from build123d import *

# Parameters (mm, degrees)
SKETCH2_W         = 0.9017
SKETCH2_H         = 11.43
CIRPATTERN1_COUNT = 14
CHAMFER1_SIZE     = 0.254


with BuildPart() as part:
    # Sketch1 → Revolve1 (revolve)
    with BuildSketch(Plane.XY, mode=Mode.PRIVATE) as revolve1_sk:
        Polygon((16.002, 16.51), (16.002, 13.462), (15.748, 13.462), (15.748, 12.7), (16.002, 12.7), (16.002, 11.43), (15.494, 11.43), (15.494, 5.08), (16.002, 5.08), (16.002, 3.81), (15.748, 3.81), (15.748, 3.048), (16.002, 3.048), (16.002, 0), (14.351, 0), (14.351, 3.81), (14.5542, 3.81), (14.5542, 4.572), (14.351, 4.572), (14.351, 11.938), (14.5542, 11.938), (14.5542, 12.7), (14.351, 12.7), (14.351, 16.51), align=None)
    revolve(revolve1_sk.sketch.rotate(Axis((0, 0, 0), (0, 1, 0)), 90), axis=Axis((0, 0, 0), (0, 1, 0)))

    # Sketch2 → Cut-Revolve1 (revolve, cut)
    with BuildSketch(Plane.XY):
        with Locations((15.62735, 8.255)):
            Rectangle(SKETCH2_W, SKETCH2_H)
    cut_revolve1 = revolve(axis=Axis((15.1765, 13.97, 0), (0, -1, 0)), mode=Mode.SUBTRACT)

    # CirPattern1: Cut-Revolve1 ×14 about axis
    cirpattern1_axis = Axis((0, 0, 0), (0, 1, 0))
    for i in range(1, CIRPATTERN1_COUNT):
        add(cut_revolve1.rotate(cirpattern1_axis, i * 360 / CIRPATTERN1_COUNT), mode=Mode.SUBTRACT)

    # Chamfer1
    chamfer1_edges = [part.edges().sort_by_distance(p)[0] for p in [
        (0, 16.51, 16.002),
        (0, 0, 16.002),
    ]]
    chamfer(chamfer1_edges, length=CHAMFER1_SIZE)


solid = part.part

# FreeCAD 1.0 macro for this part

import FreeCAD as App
import Part
import Sketcher
from FreeCAD import Vector
Q = App.Units.Quantity


def edges_at(feature, points):
    """Names of the edges that pass closest to the given points."""
    edges = feature.Shape.Edges
    near = lambda p: min(range(len(edges)), key=lambda i: edges[i].distToShape(Part.Vertex(*p))[0])
    return sorted({f"Edge{near(p) + 1}" for p in points})

doc = App.newDocument("Part")
body = doc.addObject("PartDesign::Body", "Body")

sketch1 = doc.addObject("Sketcher::SketchObject", "Sketch")
body.addObject(sketch1)
sketch1.AttachmentSupport = (doc.XY_Plane, [""])
sketch1.MapMode = "FlatFace"
sketch1.addGeometry([
    Part.LineSegment(Vector(16, 13.46, 0), Vector(16, 16.51, 0)),
    Part.LineSegment(Vector(16, 16.51, 0), Vector(14.35, 16.51, 0)),
    Part.LineSegment(Vector(14.35, 16.51, 0), Vector(14.35, 12.7, 0)),
    Part.LineSegment(Vector(14.35, 12.7, 0), Vector(14.55, 12.7, 0)),
    Part.LineSegment(Vector(14.55, 12.7, 0), Vector(14.55, 11.94, 0)),
    Part.LineSegment(Vector(14.55, 11.94, 0), Vector(14.35, 11.94, 0)),
    Part.LineSegment(Vector(14.35, 11.94, 0), Vector(14.35, 4.57, 0)),
    Part.LineSegment(Vector(14.35, 4.57, 0), Vector(14.55, 4.57, 0)),
    Part.LineSegment(Vector(14.55, 4.57, 0), Vector(14.55, 3.81, 0)),
    Part.LineSegment(Vector(14.55, 3.81, 0), Vector(14.35, 3.81, 0)),
    Part.LineSegment(Vector(14.35, 3.81, 0), Vector(14.35, 0, 0)),
    Part.LineSegment(Vector(14.35, 0, 0), Vector(16, 0, 0)),
    Part.LineSegment(Vector(16, 0, 0), Vector(16, 3.05, 0)),
    Part.LineSegment(Vector(16, 3.05, 0), Vector(15.75, 3.05, 0)),
    Part.LineSegment(Vector(15.75, 3.05, 0), Vector(15.75, 3.81, 0)),
    Part.LineSegment(Vector(15.75, 3.81, 0), Vector(16, 3.81, 0)),
    Part.LineSegment(Vector(16, 3.81, 0), Vector(16, 5.08, 0)),
    Part.LineSegment(Vector(16, 5.08, 0), Vector(15.49, 5.08, 0)),
    Part.LineSegment(Vector(15.49, 5.08, 0), Vector(15.49, 11.43, 0)),
    Part.LineSegment(Vector(15.49, 11.43, 0), Vector(16, 11.43, 0)),
    Part.LineSegment(Vector(16, 11.43, 0), Vector(16, 12.7, 0)),
    Part.LineSegment(Vector(16, 12.7, 0), Vector(15.75, 12.7, 0)),
    Part.LineSegment(Vector(15.75, 12.7, 0), Vector(15.75, 13.46, 0)),
    Part.LineSegment(Vector(15.75, 13.46, 0), Vector(16, 13.46, 0)),
], False)
sketch1.addConstraint([
    Sketcher.Constraint("Coincident", 0, 2, 1, 1),
    Sketcher.Constraint("Coincident", 1, 2, 2, 1),
    Sketcher.Constraint("Coincident", 2, 2, 3, 1),
    Sketcher.Constraint("Coincident", 3, 2, 4, 1),
    Sketcher.Constraint("Coincident", 4, 2, 5, 1),
    Sketcher.Constraint("Coincident", 5, 2, 6, 1),
    Sketcher.Constraint("Coincident", 6, 2, 7, 1),
    Sketcher.Constraint("Coincident", 7, 2, 8, 1),
    Sketcher.Constraint("Coincident", 8, 2, 9, 1),
    Sketcher.Constraint("Coincident", 9, 2, 10, 1),
    Sketcher.Constraint("Coincident", 10, 2, 11, 1),
    Sketcher.Constraint("Coincident", 11, 2, 12, 1),
    Sketcher.Constraint("Coincident", 12, 2, 13, 1),
    Sketcher.Constraint("Coincident", 13, 2, 14, 1),
    Sketcher.Constraint("Coincident", 14, 2, 15, 1),
    Sketcher.Constraint("Coincident", 15, 2, 16, 1),
    Sketcher.Constraint("Coincident", 16, 2, 17, 1),
    Sketcher.Constraint("Coincident", 17, 2, 18, 1),
    Sketcher.Constraint("Coincident", 18, 2, 19, 1),
    Sketcher.Constraint("Coincident", 19, 2, 20, 1),
    Sketcher.Constraint("Coincident", 20, 2, 21, 1),
    Sketcher.Constraint("Coincident", 21, 2, 22, 1),
    Sketcher.Constraint("Coincident", 22, 2, 23, 1),
    Sketcher.Constraint("Coincident", 23, 2, 0, 1),
    Sketcher.Constraint("Vertical", 0),
    Sketcher.Constraint("Horizontal", 1),
    Sketcher.Constraint("Vertical", 2),
    Sketcher.Constraint("Horizontal", 3),
    Sketcher.Constraint("Vertical", 4),
    Sketcher.Constraint("Horizontal", 5),
    Sketcher.Constraint("Vertical", 6),
    Sketcher.Constraint("Horizontal", 7),
    Sketcher.Constraint("Vertical", 8),
    Sketcher.Constraint("Horizontal", 9),
    Sketcher.Constraint("Vertical", 10),
    Sketcher.Constraint("Horizontal", 11),
    Sketcher.Constraint("Vertical", 12),
    Sketcher.Constraint("Horizontal", 13),
    Sketcher.Constraint("Vertical", 14),
    Sketcher.Constraint("Horizontal", 15),
    Sketcher.Constraint("Vertical", 16),
    Sketcher.Constraint("Horizontal", 17),
    Sketcher.Constraint("Vertical", 18),
    Sketcher.Constraint("Horizontal", 19),
    Sketcher.Constraint("Vertical", 20),
    Sketcher.Constraint("Horizontal", 21),
    Sketcher.Constraint("Vertical", 22),
    Sketcher.Constraint("Horizontal", 23),
    Sketcher.Constraint("PointOnObject", 10, 2, -1),
    Sketcher.Constraint("Horizontal", 9, 2, 14, 2),
    Sketcher.Constraint("Horizontal", 3, 2, 20, 2),
    Sketcher.Constraint("Vertical", 2, 2, 5, 2),
    Sketcher.Constraint("Vertical", 4, 2, 7, 2),
    Sketcher.Constraint("Vertical", 6, 2, 9, 2),
    Sketcher.Constraint("Vertical", 0, 2, 11, 2),
    Sketcher.Constraint("Vertical", 12, 2, 15, 2),
    Sketcher.Constraint("Vertical", 16, 2, 19, 2),
    Sketcher.Constraint("Vertical", 14, 2, 21, 2),
    Sketcher.Constraint("Equal", 4, 8),
    Sketcher.Constraint("Equal", 2, 10),
    Sketcher.Constraint("Equal", 0, 12),
    Sketcher.Constraint("Equal", 8, 14),
    Sketcher.Constraint("Equal", 16, 20),
    Sketcher.Constraint("DistanceX", 13, 2, 13, 1, Q("0.01 in")),
    Sketcher.Constraint("DistanceX", 17, 2, 17, 1, Q("0.02 in")),
    Sketcher.Constraint("DistanceY", 0, 1, 0, 2, Q("0.12 in")),
    Sketcher.Constraint("DistanceY", 2, 2, 2, 1, Q("0.15 in")),
    Sketcher.Constraint("DistanceY", 6, 2, 6, 1, Q("0.29 in")),
    Sketcher.Constraint("DistanceY", 16, 1, 16, 2, Q("0.05 in")),
    Sketcher.Constraint("DistanceX", 1, 2, 1, 1, Q("0.065 in")),
    Sketcher.Constraint("DistanceX", 3, 1, 3, 2, Q("0.008 in")),
    Sketcher.Constraint("DistanceX", -1, 1, 0, 2, Q("0.63 in")),
])
revolution = doc.addObject("PartDesign::Revolution", "Revolution")
body.addObject(revolution)
revolution.Profile = sketch1
revolution.ReferenceAxis = (sketch1, ["V_Axis"])
revolution.Angle = 360

sketch2 = doc.addObject("Sketcher::SketchObject", "Sketch001")
body.addObject(sketch2)
sketch2.AttachmentSupport = (doc.XY_Plane, [""])
sketch2.MapMode = "FlatFace"
sketch2.addGeometry([
    Part.LineSegment(Vector(15.2, 14, 0), Vector(15.2, 2.5, 0)),
    Part.LineSegment(Vector(15.2, 2.5, 0), Vector(16.1, 2.5, 0)),
    Part.LineSegment(Vector(16.1, 2.5, 0), Vector(16.1, 14, 0)),
    Part.LineSegment(Vector(16.1, 14, 0), Vector(15.2, 14, 0)),
], False)
sketch2.addGeometry(Part.LineSegment(Vector(15.2, 14, 0), Vector(15.2, 2.5, 0)), True)
sketch2.addConstraint([
    Sketcher.Constraint("Coincident", 0, 2, 1, 1),
    Sketcher.Constraint("Coincident", 1, 2, 2, 1),
    Sketcher.Constraint("Coincident", 2, 2, 3, 1),
    Sketcher.Constraint("Coincident", 3, 2, 0, 1),
    Sketcher.Constraint("Vertical", 0),
    Sketcher.Constraint("Horizontal", 1),
    Sketcher.Constraint("Vertical", 2),
    Sketcher.Constraint("Horizontal", 3),
    Sketcher.Constraint("Vertical", 4),
    Sketcher.Constraint("Coincident", 4, 1, 3, 2),
    Sketcher.Constraint("Horizontal", 1, 2, 4, 2),
    Sketcher.Constraint("DistanceY", 0, 2, 0, 1, Q("0.45 in")),
    Sketcher.Constraint("DistanceY", -1, 1, 0, 2, Q("0.1 in")),
    Sketcher.Constraint("DistanceX", 1, 1, 1, 2, Q("0.0355 in")),
    Sketcher.Constraint("DistanceX", -1, 1, 1, 2, Q("0.633 in")),
])
groove = doc.addObject("PartDesign::Groove", "Groove")
body.addObject(groove)
groove.Profile = sketch2
groove.ReferenceAxis = (sketch2, ["Axis0"])
groove.Angle = 360
doc.recompute()

polarpattern = doc.addObject("PartDesign::PolarPattern", "PolarPattern")
body.addObject(polarpattern)
polarpattern.Originals = [groove]
polarpattern.Axis = (doc.Y_Axis, [""])
polarpattern.Angle = 360
polarpattern.Occurrences = 14
body.Tip = polarpattern
doc.recompute()

chamfer = doc.addObject("PartDesign::Chamfer", "Chamfer")
body.addObject(chamfer)
chamfer.Base = (polarpattern, edges_at(polarpattern, [(0, 16.51, 16.002), (0, 0, 16.002)]))
chamfer.Size = Q("0.01 in")

doc.recompute()
